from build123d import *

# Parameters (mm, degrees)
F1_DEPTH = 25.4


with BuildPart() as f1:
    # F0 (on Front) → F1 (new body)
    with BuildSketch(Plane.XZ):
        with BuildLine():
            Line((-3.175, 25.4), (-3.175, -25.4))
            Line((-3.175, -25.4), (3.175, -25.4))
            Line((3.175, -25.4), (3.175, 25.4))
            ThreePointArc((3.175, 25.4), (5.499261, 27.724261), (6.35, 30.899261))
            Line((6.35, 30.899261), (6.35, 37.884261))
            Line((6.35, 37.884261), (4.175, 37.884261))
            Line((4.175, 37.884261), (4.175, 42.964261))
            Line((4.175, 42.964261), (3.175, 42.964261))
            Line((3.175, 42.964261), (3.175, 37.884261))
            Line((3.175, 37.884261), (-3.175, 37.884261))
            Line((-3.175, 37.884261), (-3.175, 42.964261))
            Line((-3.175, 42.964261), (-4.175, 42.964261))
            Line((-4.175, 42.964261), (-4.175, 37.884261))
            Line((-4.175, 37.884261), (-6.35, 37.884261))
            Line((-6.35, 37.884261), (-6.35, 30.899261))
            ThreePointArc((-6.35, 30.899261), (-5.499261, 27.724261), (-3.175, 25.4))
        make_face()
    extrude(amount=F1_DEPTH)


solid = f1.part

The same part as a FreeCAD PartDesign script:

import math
import FreeCAD as App
import Part
import Sketcher
from FreeCAD import Vector
Q = App.Units.Quantity

doc = App.newDocument("Part")
body = doc.addObject("PartDesign::Body", "Body")

sketch1 = doc.addObject("Sketcher::SketchObject", "Sketch")
body.addObject(sketch1)
sketch1.AttachmentSupport = (doc.XZ_Plane, [""])
sketch1.MapMode = "FlatFace"
sketch1.addGeometry(Part.LineSegment(Vector(-3.2, 25.4, 0), Vector(-3.2, -25.4, 0)), False)
sketch1.addGeometry(Part.LineSegment(Vector(-3.2, -25.4, 0), Vector(3.2, -25.4, 0)), False)
sketch1.addGeometry(Part.LineSegment(Vector(3.2, -25.4, 0), Vector(3.2, 25.4, 0)), False)
sketch1.addGeometry(Part.ArcOfCircle(Part.Circle(Vector(0, 30.9, 0), Vector(0, 0, 1), 6.4), math.radians(-60), math.radians(0)), False)
sketch1.addGeometry(Part.LineSegment(Vector(6.3, 30.9, 0), Vector(6.3, 37.9, 0)), False)
sketch1.addGeometry(Part.LineSegment(Vector(6.3, 37.9, 0), Vector(4.2, 37.9, 0)), False)
sketch1.addGeometry(Part.LineSegment(Vector(4.2, 37.9, 0), Vector(4.2, 43, 0)), False)
sketch1.addGeometry(Part.LineSegment(Vector(4.2, 43, 0), Vector(3.2, 43, 0)), False)
sketch1.addGeometry(Part.LineSegment(Vector(3.2, 43, 0), Vector(3.2, 37.9, 0)), False)
sketch1.addGeometry(Part.LineSegment(Vector(3.2, 37.9, 0), Vector(-3.2, 37.9, 0)), False)
sketch1.addGeometry(Part.LineSegment(Vector(-3.2, 37.9, 0), Vector(-3.2, 43, 0)), False)
sketch1.addGeometry(Part.LineSegment(Vector(-3.2, 43, 0), Vector(-4.2, 43, 0)), False)
sketch1.addGeometry(Part.LineSegment(Vector(-4.2, 43, 0), Vector(-4.2, 37.9, 0)), False)
sketch1.addGeometry(Part.LineSegment(Vector(-4.2, 37.9, 0), Vector(-6.3, 37.9, 0)), False)
sketch1.addGeometry(Part.LineSegment(Vector(-6.3, 37.9, 0), Vector(-6.3, 30.9, 0)), False)
sketch1.addGeometry(Part.ArcOfCircle(Part.Circle(Vector(0, 30.9, 0), Vector(0, 0, 1), 6.4), math.radians(-180), math.radians(-120)), False)
sketch1.addConstraint(Sketcher.Constraint("Coincident", 0, 2, 1, 1))
sketch1.addConstraint(Sketcher.Constraint("Coincident", 1, 2, 2, 1))
sketch1.addConstraint(Sketcher.Constraint("Coincident", 2, 2, 3, 1))
sketch1.addConstraint(Sketcher.Constraint("Tangent", 3, 2, 4, 1))
sketch1.addConstraint(Sketcher.Constraint("Coincident", 4, 2, 5, 1))
sketch1.addConstraint(Sketcher.Constraint("Coincident", 5, 2, 6, 1))
sketch1.addConstraint(Sketcher.Constraint("Coincident", 6, 2, 7, 1))
sketch1.addConstraint(Sketcher.Constraint("Coincident", 7, 2, 8, 1))
sketch1.addConstraint(Sketcher.Constraint("Coincident", 8, 2, 9, 1))
sketch1.addConstraint(Sketcher.Constraint("Coincident", 9, 2, 10, 1))
sketch1.addConstraint(Sketcher.Constraint("Coincident", 10, 2, 11, 1))
sketch1.addConstraint(Sketcher.Constraint("Coincident", 11, 2, 12, 1))
sketch1.addConstraint(Sketcher.Constraint("Coincident", 12, 2, 13, 1))
sketch1.addConstraint(Sketcher.Constraint("Coincident", 13, 2, 14, 1))
sketch1.addConstraint(Sketcher.Constraint("Tangent", 14, 2, 15, 1))
sketch1.addConstraint(Sketcher.Constraint("Coincident", 15, 2, 0, 1))
sketch1.addConstraint(Sketcher.Constraint("Vertical", 0))
sketch1.addConstraint(Sketcher.Constraint("Horizontal", 1))
sketch1.addConstraint(Sketcher.Constraint("Vertical", 2))
sketch1.addConstraint(Sketcher.Constraint("Vertical", 4))
sketch1.addConstraint(Sketcher.Constraint("Horizontal", 5))
sketch1.addConstraint(Sketcher.Constraint("Vertical", 6))
sketch1.addConstraint(Sketcher.Constraint("Horizontal", 7))
sketch1.addConstraint(Sketcher.Constraint("Vertical", 8))
sketch1.addConstraint(Sketcher.Constraint("Horizontal", 9))
sketch1.addConstraint(Sketcher.Constraint("Vertical", 10))
sketch1.addConstraint(Sketcher.Constraint("Horizontal", 11))
sketch1.addConstraint(Sketcher.Constraint("Vertical", 12))
sketch1.addConstraint(Sketcher.Constraint("Horizontal", 13))
sketch1.addConstraint(Sketcher.Constraint("Vertical", 14))
sketch1.addConstraint(Sketcher.Constraint("Coincident", 15, 3, 3, 3))
sketch1.addConstraint(Sketcher.Constraint("Equal", 3, 15))
sketch1.addConstraint(Sketcher.Constraint("Symmetric", 0, 2, 2, 2, -1, 1))
sketch1.addConstraint(Sketcher.Constraint("Symmetric", 7, 2, 10, 2, -2))
sketch1.addConstraint(Sketcher.Constraint("Symmetric", 5, 2, 12, 2, -2))
sketch1.addConstraint(Sketcher.Constraint("PointOnObject", 3, 3, -2))
sketch1.addConstraint(Sketcher.Constraint("Horizontal", 5, 2, 8, 2))
sketch1.addConstraint(Sketcher.Constraint("Vertical", 2, 2, 7, 2))
sketch1.addConstraint(Sketcher.Constraint("DistanceY", 0, 2, 0, 1, Q("2 in")))
sketch1.addConstraint(Sketcher.Constraint("Radius", 3, Q("0.25 in")))
sketch1.addConstraint(Sketcher.Constraint("DistanceY", 6, 1, 6, 2, Q("0.2 in")))
sketch1.addConstraint(Sketcher.Constraint("DistanceX", 1, 1, 1, 2, Q("0.25 in")))
sketch1.addConstraint(Sketcher.Constraint("DistanceY", 4, 1, 4, 2, Q("0.275 in")))
sketch1.addConstraint(Sketcher.Constraint("DistanceX", 5, 2, 5, 1, Q("2.175 mm")))
pad1 = doc.addObject("PartDesign::Pad", "Pad")
body.addObject(pad1)
pad1.Profile = sketch1
pad1.Length = Q("1 in")

doc.recompute()
